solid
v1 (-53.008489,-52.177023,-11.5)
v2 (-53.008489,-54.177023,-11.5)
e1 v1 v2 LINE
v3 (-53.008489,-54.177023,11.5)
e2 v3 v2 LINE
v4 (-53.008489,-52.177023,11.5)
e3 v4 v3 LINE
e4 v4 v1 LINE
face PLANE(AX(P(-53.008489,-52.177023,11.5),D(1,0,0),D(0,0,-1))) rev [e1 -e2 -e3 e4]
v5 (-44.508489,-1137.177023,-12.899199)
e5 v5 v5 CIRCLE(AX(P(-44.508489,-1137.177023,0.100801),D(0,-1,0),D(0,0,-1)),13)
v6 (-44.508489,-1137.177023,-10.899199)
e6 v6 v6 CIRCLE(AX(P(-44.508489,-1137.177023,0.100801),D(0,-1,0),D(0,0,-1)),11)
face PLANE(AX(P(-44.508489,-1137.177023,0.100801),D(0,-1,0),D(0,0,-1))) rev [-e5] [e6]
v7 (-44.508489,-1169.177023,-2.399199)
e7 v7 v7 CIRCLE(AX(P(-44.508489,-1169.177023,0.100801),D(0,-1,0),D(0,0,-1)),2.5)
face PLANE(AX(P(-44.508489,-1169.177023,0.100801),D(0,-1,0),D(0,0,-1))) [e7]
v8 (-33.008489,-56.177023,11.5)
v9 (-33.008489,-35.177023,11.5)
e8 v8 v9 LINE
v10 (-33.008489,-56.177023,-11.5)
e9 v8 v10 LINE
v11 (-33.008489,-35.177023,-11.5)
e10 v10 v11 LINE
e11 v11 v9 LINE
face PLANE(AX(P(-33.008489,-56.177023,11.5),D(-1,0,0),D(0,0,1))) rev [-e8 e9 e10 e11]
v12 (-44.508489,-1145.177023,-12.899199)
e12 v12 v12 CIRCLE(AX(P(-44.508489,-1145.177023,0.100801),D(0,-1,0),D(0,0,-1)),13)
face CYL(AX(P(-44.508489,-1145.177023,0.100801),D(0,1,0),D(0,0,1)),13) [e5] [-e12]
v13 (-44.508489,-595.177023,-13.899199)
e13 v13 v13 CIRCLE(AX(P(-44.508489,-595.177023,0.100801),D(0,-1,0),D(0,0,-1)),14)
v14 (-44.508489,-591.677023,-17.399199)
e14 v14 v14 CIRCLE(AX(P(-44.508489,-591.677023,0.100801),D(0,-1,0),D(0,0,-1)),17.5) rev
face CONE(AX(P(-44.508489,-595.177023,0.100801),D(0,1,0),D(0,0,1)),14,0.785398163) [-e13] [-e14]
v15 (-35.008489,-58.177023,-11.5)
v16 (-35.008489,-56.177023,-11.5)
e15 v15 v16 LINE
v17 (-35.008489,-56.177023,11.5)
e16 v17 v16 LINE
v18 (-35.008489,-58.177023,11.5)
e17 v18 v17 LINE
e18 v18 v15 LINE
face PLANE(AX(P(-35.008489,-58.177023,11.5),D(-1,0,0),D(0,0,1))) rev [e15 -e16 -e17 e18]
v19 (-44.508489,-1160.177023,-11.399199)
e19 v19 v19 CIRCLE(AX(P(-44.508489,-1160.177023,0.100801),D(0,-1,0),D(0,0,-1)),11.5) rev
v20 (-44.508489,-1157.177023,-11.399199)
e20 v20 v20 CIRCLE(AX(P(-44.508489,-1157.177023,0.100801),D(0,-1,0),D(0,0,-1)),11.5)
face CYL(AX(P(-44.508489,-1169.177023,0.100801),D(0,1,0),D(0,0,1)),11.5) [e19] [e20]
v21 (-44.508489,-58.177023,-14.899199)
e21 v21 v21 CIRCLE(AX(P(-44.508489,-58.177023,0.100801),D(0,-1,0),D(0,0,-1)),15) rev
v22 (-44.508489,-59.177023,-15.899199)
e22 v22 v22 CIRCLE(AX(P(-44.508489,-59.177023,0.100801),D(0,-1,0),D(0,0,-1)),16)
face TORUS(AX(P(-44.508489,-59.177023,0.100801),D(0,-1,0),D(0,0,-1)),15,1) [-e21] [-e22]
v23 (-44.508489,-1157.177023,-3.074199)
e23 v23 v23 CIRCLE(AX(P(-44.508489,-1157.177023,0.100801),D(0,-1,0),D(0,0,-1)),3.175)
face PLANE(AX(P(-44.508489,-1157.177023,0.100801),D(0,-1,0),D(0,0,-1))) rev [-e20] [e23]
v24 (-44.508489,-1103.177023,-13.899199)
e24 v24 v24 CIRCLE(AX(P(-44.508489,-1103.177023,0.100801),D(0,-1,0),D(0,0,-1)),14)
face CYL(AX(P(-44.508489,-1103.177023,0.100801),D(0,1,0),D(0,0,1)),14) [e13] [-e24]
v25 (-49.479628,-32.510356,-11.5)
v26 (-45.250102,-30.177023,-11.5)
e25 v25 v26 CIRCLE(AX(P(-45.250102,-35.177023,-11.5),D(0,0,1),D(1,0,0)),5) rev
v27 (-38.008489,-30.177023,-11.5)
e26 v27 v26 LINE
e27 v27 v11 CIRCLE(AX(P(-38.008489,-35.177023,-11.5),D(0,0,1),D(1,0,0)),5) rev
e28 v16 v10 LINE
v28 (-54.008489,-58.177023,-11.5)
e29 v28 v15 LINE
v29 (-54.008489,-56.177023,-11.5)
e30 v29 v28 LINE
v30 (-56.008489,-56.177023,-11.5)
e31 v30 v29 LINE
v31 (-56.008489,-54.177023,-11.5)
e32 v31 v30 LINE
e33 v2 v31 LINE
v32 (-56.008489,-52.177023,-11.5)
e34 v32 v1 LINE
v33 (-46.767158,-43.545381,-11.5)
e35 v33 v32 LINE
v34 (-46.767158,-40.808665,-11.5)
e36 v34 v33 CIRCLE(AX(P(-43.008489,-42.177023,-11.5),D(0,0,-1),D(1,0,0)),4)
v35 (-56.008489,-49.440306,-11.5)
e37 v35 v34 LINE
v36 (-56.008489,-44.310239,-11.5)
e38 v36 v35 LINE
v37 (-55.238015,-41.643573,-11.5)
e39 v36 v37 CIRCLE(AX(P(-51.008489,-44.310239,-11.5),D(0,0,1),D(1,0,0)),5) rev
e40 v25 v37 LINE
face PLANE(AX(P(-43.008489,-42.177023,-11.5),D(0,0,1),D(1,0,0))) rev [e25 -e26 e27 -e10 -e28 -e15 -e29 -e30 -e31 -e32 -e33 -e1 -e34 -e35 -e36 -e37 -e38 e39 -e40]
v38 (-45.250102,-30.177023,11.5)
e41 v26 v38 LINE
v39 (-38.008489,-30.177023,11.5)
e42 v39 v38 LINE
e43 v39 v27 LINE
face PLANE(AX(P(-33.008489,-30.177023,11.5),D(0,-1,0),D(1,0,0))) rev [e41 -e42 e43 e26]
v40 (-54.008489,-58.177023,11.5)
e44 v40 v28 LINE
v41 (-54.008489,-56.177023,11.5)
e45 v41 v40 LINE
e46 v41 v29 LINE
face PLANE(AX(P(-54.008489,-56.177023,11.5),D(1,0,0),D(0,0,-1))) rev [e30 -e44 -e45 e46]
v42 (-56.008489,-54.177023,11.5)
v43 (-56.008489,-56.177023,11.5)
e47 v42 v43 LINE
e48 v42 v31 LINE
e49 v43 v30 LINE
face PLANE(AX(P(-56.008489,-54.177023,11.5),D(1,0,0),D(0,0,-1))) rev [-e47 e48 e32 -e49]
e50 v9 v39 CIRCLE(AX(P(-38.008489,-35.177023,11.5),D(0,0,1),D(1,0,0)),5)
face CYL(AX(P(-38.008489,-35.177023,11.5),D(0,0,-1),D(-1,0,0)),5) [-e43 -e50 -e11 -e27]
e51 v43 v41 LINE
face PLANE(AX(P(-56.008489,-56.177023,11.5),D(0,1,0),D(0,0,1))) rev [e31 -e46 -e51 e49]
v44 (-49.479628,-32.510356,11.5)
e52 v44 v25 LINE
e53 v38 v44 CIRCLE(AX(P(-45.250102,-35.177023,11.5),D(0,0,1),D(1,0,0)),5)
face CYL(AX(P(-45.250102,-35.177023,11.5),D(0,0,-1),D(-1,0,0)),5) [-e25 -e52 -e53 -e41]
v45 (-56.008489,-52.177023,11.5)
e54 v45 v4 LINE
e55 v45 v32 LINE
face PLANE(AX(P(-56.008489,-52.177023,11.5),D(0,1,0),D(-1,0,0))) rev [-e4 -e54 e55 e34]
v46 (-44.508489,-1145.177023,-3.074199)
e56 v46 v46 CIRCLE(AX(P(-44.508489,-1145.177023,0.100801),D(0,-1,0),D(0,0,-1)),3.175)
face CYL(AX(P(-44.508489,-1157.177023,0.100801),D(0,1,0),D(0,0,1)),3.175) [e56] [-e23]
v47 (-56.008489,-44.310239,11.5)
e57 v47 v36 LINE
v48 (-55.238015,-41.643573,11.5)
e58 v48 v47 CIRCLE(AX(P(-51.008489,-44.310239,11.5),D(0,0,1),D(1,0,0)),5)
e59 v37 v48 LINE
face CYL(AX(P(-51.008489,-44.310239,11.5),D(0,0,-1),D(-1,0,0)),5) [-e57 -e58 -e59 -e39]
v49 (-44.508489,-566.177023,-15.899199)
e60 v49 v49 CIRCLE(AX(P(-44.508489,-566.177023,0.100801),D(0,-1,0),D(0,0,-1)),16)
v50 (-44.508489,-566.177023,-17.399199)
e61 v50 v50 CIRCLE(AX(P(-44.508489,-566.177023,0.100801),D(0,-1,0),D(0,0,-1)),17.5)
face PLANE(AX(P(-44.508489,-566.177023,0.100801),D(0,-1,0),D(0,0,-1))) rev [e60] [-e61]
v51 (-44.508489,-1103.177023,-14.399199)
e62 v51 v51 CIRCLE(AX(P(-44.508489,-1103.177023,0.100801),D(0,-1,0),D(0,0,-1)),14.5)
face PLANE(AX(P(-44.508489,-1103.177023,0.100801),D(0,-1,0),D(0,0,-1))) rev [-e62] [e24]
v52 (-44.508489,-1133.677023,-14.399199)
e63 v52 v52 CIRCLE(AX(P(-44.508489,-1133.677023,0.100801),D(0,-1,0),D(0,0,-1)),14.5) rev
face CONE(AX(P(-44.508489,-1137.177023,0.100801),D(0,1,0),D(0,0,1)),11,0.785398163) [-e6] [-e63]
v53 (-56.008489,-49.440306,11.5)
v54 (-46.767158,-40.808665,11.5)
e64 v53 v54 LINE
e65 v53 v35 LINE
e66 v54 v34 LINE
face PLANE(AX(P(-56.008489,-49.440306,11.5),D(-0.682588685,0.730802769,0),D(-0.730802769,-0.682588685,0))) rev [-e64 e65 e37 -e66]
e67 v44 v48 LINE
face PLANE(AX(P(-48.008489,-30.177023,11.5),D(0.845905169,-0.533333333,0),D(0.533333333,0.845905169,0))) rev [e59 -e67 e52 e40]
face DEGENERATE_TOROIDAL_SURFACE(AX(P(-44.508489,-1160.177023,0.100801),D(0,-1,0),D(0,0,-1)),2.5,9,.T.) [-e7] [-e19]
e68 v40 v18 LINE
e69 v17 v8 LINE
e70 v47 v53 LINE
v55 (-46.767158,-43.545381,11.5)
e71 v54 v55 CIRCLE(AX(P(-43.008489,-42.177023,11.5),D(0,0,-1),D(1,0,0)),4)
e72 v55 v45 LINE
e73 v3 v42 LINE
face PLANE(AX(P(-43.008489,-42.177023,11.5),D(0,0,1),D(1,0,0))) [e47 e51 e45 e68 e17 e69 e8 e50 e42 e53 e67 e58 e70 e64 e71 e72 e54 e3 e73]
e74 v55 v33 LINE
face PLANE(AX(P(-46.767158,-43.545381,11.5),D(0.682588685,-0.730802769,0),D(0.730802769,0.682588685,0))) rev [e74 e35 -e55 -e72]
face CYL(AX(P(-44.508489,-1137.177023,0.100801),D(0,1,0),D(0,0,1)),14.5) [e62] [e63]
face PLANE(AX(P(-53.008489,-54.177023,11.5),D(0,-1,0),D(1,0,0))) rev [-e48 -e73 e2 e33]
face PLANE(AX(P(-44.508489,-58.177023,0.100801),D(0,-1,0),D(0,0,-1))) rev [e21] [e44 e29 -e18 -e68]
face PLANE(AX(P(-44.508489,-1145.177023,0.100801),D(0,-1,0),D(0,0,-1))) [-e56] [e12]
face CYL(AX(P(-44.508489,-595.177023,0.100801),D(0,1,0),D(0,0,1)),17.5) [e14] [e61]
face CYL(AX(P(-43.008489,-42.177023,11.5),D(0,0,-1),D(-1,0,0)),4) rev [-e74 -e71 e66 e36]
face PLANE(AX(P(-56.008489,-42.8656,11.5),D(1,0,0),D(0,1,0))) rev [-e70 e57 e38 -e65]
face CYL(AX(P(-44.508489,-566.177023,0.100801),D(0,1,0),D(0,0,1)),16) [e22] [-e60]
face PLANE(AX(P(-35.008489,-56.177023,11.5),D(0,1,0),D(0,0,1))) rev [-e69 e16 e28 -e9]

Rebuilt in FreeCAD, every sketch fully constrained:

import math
import FreeCAD as App
import Part
import Sketcher
Q = App.Units.Quantity


def edges_at(feature, points):
    """Names of the edges that pass closest to the given points."""
    edges = feature.Shape.Edges
    near = lambda p: min(range(len(edges)), key=lambda i: edges[i].distToShape(Part.Vertex(*p))[0])
    return sorted({f"Edge{near(p) + 1}" for p in points})

doc = App.newDocument("Part")
body = doc.addObject("PartDesign::Body", "Body")

sketch1 = body.newObject("Sketcher::SketchObject", "Sketch")
sketch1.AttachmentSupport = (doc.getObject("XY_Plane"), [""])
sketch1.MapMode = "FlatFace"
sketch1.addGeometry(Part.LineSegment(App.Vector(-33.008489, -30.177023, 0), App.Vector(-48.008489, -30.177023, 0)), False)
sketch1.addGeometry(Part.LineSegment(App.Vector(-48.008489, -30.177023, 0), App.Vector(-56.008489, -42.8656, 0)), False)
sketch1.addGeometry(Part.LineSegment(App.Vector(-56.008489, -42.8656, 0), App.Vector(-56.008489, -49.440306, 0)), False)
sketch1.addGeometry(Part.LineSegment(App.Vector(-56.008489, -49.440306, 0), App.Vector(-46.767158, -40.808665, 0)), False)
sketch1.addGeometry(Part.ArcOfCircle(Part.Circle(App.Vector(-43.008489, -42.177023, 0), App.Vector(0, 0, 1), 4), math.radians(-159.995767), math.radians(159.995767)), False)
sketch1.addGeometry(Part.LineSegment(App.Vector(-46.767158, -43.545381, 0), App.Vector(-56.008489, -52.177023, 0)), False)
sketch1.addGeometry(Part.LineSegment(App.Vector(-56.008489, -52.177023, 0), App.Vector(-53.008489, -52.177023, 0)), False)
sketch1.addGeometry(Part.LineSegment(App.Vector(-53.008489, -52.177023, 0), App.Vector(-53.008489, -54.177023, 0)), False)
sketch1.addGeometry(Part.LineSegment(App.Vector(-53.008489, -54.177023, 0), App.Vector(-56.008489, -54.177023, 0)), False)
sketch1.addGeometry(Part.LineSegment(App.Vector(-56.008489, -54.177023, 0), App.Vector(-56.008489, -56.177023, 0)), False)
sketch1.addGeometry(Part.LineSegment(App.Vector(-56.008489, -56.177023, 0), App.Vector(-54.008489, -56.177023, 0)), False)
sketch1.addGeometry(Part.LineSegment(App.Vector(-54.008489, -56.177023, 0), App.Vector(-54.008489, -58.177023, 0)), False)
sketch1.addGeometry(Part.LineSegment(App.Vector(-54.008489, -58.177023, 0), App.Vector(-35.008489, -58.177023, 0)), False)
sketch1.addGeometry(Part.LineSegment(App.Vector(-35.008489, -58.177023, 0), App.Vector(-35.008489, -56.177023, 0)), False)
sketch1.addGeometry(Part.LineSegment(App.Vector(-35.008489, -56.177023, 0), App.Vector(-33.008489, -56.177023, 0)), False)
sketch1.addGeometry(Part.LineSegment(App.Vector(-33.008489, -56.177023, 0), App.Vector(-33.008489, -30.177023, 0)), False)
sketch1.addConstraint(Sketcher.Constraint("Coincident", 0, 2, 1, 1))
sketch1.addConstraint(Sketcher.Constraint("Coincident", 1, 2, 2, 1))
sketch1.addConstraint(Sketcher.Constraint("Coincident", 2, 2, 3, 1))
sketch1.addConstraint(Sketcher.Constraint("Coincident", 3, 2, 4, 2))
sketch1.addConstraint(Sketcher.Constraint("Coincident", 4, 1, 5, 1))
sketch1.addConstraint(Sketcher.Constraint("Coincident", 5, 2, 6, 1))
sketch1.addConstraint(Sketcher.Constraint("Coincident", 6, 2, 7, 1))
sketch1.addConstraint(Sketcher.Constraint("Coincident", 7, 2, 8, 1))
sketch1.addConstraint(Sketcher.Constraint("Coincident", 8, 2, 9, 1))
sketch1.addConstraint(Sketcher.Constraint("Coincident", 9, 2, 10, 1))
sketch1.addConstraint(Sketcher.Constraint("Coincident", 10, 2, 11, 1))
sketch1.addConstraint(Sketcher.Constraint("Coincident", 11, 2, 12, 1))
sketch1.addConstraint(Sketcher.Constraint("Coincident", 12, 2, 13, 1))
sketch1.addConstraint(Sketcher.Constraint("Coincident", 13, 2, 14, 1))
sketch1.addConstraint(Sketcher.Constraint("Coincident", 14, 2, 15, 1))
sketch1.addConstraint(Sketcher.Constraint("Coincident", 15, 2, 0, 1))
sketch1.addConstraint(Sketcher.Constraint("Horizontal", 0))
sketch1.addConstraint(Sketcher.Constraint("Vertical", 2))
sketch1.addConstraint(Sketcher.Constraint("Horizontal", 6))
sketch1.addConstraint(Sketcher.Constraint("Vertical", 7))
sketch1.addConstraint(Sketcher.Constraint("Horizontal", 8))
sketch1.addConstraint(Sketcher.Constraint("Vertical", 9))
sketch1.addConstraint(Sketcher.Constraint("Horizontal", 10))
sketch1.addConstraint(Sketcher.Constraint("Vertical", 11))
sketch1.addConstraint(Sketcher.Constraint("Horizontal", 12))
sketch1.addConstraint(Sketcher.Constraint("Vertical", 13))
sketch1.addConstraint(Sketcher.Constraint("Horizontal", 14))
sketch1.addConstraint(Sketcher.Constraint("Vertical", 15))
sketch1.addConstraint(Sketcher.Constraint("Parallel", 3, 5))
sketch1.addConstraint(Sketcher.Constraint("Horizontal", 10, 2, 13, 2))
sketch1.addConstraint(Sketcher.Constraint("Vertical", 3, 2, 4, 1))
sketch1.addConstraint(Sketcher.Constraint("Vertical", 2, 2, 5, 2))
sketch1.addConstraint(Sketcher.Constraint("Vertical", 5, 2, 8, 2))
sketch1.addConstraint(Sketcher.Constraint("Equal", 10, 14))
sketch1.addConstraint(Sketcher.Constraint("Equal", 14, 7))
sketch1.addConstraint(Sketcher.Constraint("Equal", 7, 9))
sketch1.addConstraint(Sketcher.Constraint("Equal", 9, 11))
sketch1.addConstraint(Sketcher.Constraint("Radius", 4, Q("4 mm")))
sketch1.addConstraint(Sketcher.Constraint("DistanceX", 0, 2, 0, 1, Q("15 mm")))
sketch1.addConstraint(Sketcher.Constraint("DistanceX", 6, 1, 6, 2, Q("3 mm")))
sketch1.addConstraint(Sketcher.Constraint("DistanceX", 10, 1, 10, 2, Q("2 mm")))
sketch1.addConstraint(Sketcher.Constraint("DistanceX", 12, 1, 12, 2, Q("19 mm")))
sketch1.addConstraint(Sketcher.Constraint("DistanceY", 15, 1, 15, 2, Q("26 mm")))
sketch1.addConstraint(Sketcher.Constraint("Distance", 1, Q("15 mm")))
sketch1.addConstraint(Sketcher.Constraint("DistanceX", 0, 2, 4, 3, Q("5 mm")))
sketch1.addConstraint(Sketcher.Constraint("DistanceY", 4, 3, 0, 2, Q("12 mm")))
sketch1.addConstraint(Sketcher.Constraint("DistanceY", 1, 2, -1, 1, Q("42.8656 mm")))
sketch1.addConstraint(Sketcher.Constraint("Distance", 3, Q("12.645451 mm")))
sketch1.addConstraint(Sketcher.Constraint("DistanceX", 4, 3, -1, 1, Q("43.008489 mm")))
pad1 = body.newObject("PartDesign::Pad", "Pad")
pad1.Profile = sketch1
pad1.Length = 23
pad1.Midplane = True
doc.recompute()

fillet = body.newObject("PartDesign::Fillet", "Fillet")
fillet.Base = (pad1, edges_at(pad1, [(-48.008, -30.177, 0), (-33.008, -30.177, 0), (-56.008, -42.866, 0)]))
fillet.Radius = 5

sketch2 = body.newObject("Sketcher::SketchObject", "Sketch001")
sketch2.AttachmentSupport = (doc.getObject("XZ_Plane"), [""])
sketch2.MapMode = "FlatFace"
sketch2.AttachmentOffset = App.Placement(App.Vector(0, 0, 58.177023), App.Rotation())
sketch2.addGeometry(Part.Circle(App.Vector(-44.508489, 0.100801, 0), App.Vector(0, 0, 1), 16), False)
sketch2.addConstraint(Sketcher.Constraint("Diameter", 0, Q("32 mm")))
sketch2.addConstraint(Sketcher.Constraint("DistanceY", -1, 1, 0, 3, Q("0.100801 mm")))
sketch2.addConstraint(Sketcher.Constraint("DistanceX", 0, 3, -1, 1, Q("44.508489 mm")))
pad2 = body.newObject("PartDesign::Pad", "Pad001")
pad2.Profile = sketch2
pad2.Length = 508
doc.recompute()

fillet2 = body.newObject("PartDesign::Fillet", "Fillet001")
fillet2.Base = (pad2, edges_at(pad2, [(-28.508, -58.177, 0.101)]))
fillet2.Radius = 1

sketch3 = body.newObject("Sketcher::SketchObject", "Sketch002")
sketch3.AttachmentSupport = (doc.getObject("XZ_Plane"), [""])
sketch3.MapMode = "FlatFace"
sketch3.AttachmentOffset = App.Placement(App.Vector(0, 0, 566.177023), App.Rotation())
sketch3.addGeometry(Part.Circle(App.Vector(-44.508489, 0.100801, 0), App.Vector(0, 0, 1), 17.5), False)
sketch3.addConstraint(Sketcher.Constraint("Diameter", 0, Q("35 mm")))
sketch3.addConstraint(Sketcher.Constraint("DistanceY", -1, 1, 0, 3, Q("0.100801 mm")))
sketch3.addConstraint(Sketcher.Constraint("DistanceX", 0, 3, -1, 1, Q("44.508489 mm")))
pad3 = body.newObject("PartDesign::Pad", "Pad002")
pad3.Profile = sketch3
pad3.Length = 29
doc.recompute()

chamfer = body.newObject("PartDesign::Chamfer", "Chamfer")
chamfer.Base = (pad3, edges_at(pad3, [(-27.008, -595.177, 0.101)]))
chamfer.Size = 3.5

sketch4 = body.newObject("Sketcher::SketchObject", "Sketch003")
sketch4.AttachmentSupport = (doc.getObject("XZ_Plane"), [""])
sketch4.MapMode = "FlatFace"
sketch4.AttachmentOffset = App.Placement(App.Vector(0, 0, 595.177023), App.Rotation())
sketch4.addGeometry(Part.Circle(App.Vector(-44.508489, 0.100801, 0), App.Vector(0, 0, 1), 14), False)
sketch4.addConstraint(Sketcher.Constraint("Diameter", 0, Q("28 mm")))
sketch4.addConstraint(Sketcher.Constraint("DistanceY", -1, 1, 0, 3, Q("0.100801 mm")))
sketch4.addConstraint(Sketcher.Constraint("DistanceX", 0, 3, -1, 1, Q("44.508489 mm")))
pad4 = body.newObject("PartDesign::Pad", "Pad003")
pad4.Profile = sketch4
pad4.Length = 508

sketch5 = body.newObject("Sketcher::SketchObject", "Sketch004")
sketch5.AttachmentSupport = (doc.getObject("XZ_Plane"), [""])
sketch5.MapMode = "FlatFace"
sketch5.AttachmentOffset = App.Placement(App.Vector(0, 0, 1103.177023), App.Rotation())
sketch5.addGeometry(Part.Circle(App.Vector(-44.508489, 0.100801, 0), App.Vector(0, 0, 1), 14.5), False)
sketch5.addConstraint(Sketcher.Constraint("Diameter", 0, Q("29 mm")))
sketch5.addConstraint(Sketcher.Constraint("DistanceY", -1, 1, 0, 3, Q("0.100801 mm")))
sketch5.addConstraint(Sketcher.Constraint("DistanceX", 0, 3, -1, 1, Q("44.508489 mm")))
pad5 = body.newObject("PartDesign::Pad", "Pad004")
pad5.Profile = sketch5
pad5.Length = 34
doc.recompute()

chamfer2 = body.newObject("PartDesign::Chamfer", "Chamfer001")
chamfer2.Base = (pad5, edges_at(pad5, [(-59.008, -1137.177, 0.101)]))
chamfer2.Size = 3.5

sketch6 = body.newObject("Sketcher::SketchObject", "Sketch005")
sketch6.AttachmentSupport = (doc.getObject("XZ_Plane"), [""])
sketch6.MapMode = "FlatFace"
sketch6.AttachmentOffset = App.Placement(App.Vector(0, 0, 1137.177023), App.Rotation())
sketch6.addGeometry(Part.Circle(App.Vector(-44.508489, 0.100801, 0), App.Vector(0, 0, 1), 13), False)
sketch6.addConstraint(Sketcher.Constraint("Diameter", 0, Q("26 mm")))
sketch6.addConstraint(Sketcher.Constraint("DistanceY", -1, 1, 0, 3, Q("0.100801 mm")))
sketch6.addConstraint(Sketcher.Constraint("DistanceX", 0, 3, -1, 1, Q("44.508489 mm")))
pad6 = body.newObject("PartDesign::Pad", "Pad005")
pad6.Profile = sketch6
pad6.Length = 8

sketch7 = body.newObject("Sketcher::SketchObject", "Sketch006")
sketch7.AttachmentSupport = (doc.getObject("XZ_Plane"), [""])
sketch7.MapMode = "FlatFace"
sketch7.AttachmentOffset = App.Placement(App.Vector(0, 0, 1145.177023), App.Rotation())
sketch7.addGeometry(Part.Circle(App.Vector(-44.508489, 0.100801, 0), App.Vector(0, 0, 1), 3.175), False)
sketch7.addConstraint(Sketcher.Constraint("Diameter", 0, Q("6.35 mm")))
sketch7.addConstraint(Sketcher.Constraint("DistanceY", -1, 1, 0, 3, Q("0.100801 mm")))
sketch7.addConstraint(Sketcher.Constraint("DistanceX", 0, 3, -1, 1, Q("44.508489 mm")))
pad7 = body.newObject("PartDesign::Pad", "Pad006")
pad7.Profile = sketch7
pad7.Length = 12

sketch8 = body.newObject("Sketcher::SketchObject", "Sketch007")
sketch8.AttachmentSupport = (doc.getObject("XZ_Plane"), [""])
sketch8.MapMode = "FlatFace"
sketch8.AttachmentOffset = App.Placement(App.Vector(0, 0, 1157.177023), App.Rotation())
sketch8.addGeometry(Part.Circle(App.Vector(-44.508489, 0.100801, 0), App.Vector(0, 0, 1), 11.5), False)
sketch8.addConstraint(Sketcher.Constraint("Diameter", 0, Q("23 mm")))
sketch8.addConstraint(Sketcher.Constraint("DistanceY", -1, 1, 0, 3, Q("0.100801 mm")))
sketch8.addConstraint(Sketcher.Constraint("DistanceX", 0, 3, -1, 1, Q("44.508489 mm")))
pad8 = body.newObject("PartDesign::Pad", "Pad007")
pad8.Profile = sketch8
pad8.Length = 12
doc.recompute()

fillet3 = body.newObject("PartDesign::Fillet", "Fillet002")
fillet3.Base = (pad8, edges_at(pad8, [(-33.008, -1169.177, 0.101)]))
fillet3.Radius = 9

doc.recompute()
